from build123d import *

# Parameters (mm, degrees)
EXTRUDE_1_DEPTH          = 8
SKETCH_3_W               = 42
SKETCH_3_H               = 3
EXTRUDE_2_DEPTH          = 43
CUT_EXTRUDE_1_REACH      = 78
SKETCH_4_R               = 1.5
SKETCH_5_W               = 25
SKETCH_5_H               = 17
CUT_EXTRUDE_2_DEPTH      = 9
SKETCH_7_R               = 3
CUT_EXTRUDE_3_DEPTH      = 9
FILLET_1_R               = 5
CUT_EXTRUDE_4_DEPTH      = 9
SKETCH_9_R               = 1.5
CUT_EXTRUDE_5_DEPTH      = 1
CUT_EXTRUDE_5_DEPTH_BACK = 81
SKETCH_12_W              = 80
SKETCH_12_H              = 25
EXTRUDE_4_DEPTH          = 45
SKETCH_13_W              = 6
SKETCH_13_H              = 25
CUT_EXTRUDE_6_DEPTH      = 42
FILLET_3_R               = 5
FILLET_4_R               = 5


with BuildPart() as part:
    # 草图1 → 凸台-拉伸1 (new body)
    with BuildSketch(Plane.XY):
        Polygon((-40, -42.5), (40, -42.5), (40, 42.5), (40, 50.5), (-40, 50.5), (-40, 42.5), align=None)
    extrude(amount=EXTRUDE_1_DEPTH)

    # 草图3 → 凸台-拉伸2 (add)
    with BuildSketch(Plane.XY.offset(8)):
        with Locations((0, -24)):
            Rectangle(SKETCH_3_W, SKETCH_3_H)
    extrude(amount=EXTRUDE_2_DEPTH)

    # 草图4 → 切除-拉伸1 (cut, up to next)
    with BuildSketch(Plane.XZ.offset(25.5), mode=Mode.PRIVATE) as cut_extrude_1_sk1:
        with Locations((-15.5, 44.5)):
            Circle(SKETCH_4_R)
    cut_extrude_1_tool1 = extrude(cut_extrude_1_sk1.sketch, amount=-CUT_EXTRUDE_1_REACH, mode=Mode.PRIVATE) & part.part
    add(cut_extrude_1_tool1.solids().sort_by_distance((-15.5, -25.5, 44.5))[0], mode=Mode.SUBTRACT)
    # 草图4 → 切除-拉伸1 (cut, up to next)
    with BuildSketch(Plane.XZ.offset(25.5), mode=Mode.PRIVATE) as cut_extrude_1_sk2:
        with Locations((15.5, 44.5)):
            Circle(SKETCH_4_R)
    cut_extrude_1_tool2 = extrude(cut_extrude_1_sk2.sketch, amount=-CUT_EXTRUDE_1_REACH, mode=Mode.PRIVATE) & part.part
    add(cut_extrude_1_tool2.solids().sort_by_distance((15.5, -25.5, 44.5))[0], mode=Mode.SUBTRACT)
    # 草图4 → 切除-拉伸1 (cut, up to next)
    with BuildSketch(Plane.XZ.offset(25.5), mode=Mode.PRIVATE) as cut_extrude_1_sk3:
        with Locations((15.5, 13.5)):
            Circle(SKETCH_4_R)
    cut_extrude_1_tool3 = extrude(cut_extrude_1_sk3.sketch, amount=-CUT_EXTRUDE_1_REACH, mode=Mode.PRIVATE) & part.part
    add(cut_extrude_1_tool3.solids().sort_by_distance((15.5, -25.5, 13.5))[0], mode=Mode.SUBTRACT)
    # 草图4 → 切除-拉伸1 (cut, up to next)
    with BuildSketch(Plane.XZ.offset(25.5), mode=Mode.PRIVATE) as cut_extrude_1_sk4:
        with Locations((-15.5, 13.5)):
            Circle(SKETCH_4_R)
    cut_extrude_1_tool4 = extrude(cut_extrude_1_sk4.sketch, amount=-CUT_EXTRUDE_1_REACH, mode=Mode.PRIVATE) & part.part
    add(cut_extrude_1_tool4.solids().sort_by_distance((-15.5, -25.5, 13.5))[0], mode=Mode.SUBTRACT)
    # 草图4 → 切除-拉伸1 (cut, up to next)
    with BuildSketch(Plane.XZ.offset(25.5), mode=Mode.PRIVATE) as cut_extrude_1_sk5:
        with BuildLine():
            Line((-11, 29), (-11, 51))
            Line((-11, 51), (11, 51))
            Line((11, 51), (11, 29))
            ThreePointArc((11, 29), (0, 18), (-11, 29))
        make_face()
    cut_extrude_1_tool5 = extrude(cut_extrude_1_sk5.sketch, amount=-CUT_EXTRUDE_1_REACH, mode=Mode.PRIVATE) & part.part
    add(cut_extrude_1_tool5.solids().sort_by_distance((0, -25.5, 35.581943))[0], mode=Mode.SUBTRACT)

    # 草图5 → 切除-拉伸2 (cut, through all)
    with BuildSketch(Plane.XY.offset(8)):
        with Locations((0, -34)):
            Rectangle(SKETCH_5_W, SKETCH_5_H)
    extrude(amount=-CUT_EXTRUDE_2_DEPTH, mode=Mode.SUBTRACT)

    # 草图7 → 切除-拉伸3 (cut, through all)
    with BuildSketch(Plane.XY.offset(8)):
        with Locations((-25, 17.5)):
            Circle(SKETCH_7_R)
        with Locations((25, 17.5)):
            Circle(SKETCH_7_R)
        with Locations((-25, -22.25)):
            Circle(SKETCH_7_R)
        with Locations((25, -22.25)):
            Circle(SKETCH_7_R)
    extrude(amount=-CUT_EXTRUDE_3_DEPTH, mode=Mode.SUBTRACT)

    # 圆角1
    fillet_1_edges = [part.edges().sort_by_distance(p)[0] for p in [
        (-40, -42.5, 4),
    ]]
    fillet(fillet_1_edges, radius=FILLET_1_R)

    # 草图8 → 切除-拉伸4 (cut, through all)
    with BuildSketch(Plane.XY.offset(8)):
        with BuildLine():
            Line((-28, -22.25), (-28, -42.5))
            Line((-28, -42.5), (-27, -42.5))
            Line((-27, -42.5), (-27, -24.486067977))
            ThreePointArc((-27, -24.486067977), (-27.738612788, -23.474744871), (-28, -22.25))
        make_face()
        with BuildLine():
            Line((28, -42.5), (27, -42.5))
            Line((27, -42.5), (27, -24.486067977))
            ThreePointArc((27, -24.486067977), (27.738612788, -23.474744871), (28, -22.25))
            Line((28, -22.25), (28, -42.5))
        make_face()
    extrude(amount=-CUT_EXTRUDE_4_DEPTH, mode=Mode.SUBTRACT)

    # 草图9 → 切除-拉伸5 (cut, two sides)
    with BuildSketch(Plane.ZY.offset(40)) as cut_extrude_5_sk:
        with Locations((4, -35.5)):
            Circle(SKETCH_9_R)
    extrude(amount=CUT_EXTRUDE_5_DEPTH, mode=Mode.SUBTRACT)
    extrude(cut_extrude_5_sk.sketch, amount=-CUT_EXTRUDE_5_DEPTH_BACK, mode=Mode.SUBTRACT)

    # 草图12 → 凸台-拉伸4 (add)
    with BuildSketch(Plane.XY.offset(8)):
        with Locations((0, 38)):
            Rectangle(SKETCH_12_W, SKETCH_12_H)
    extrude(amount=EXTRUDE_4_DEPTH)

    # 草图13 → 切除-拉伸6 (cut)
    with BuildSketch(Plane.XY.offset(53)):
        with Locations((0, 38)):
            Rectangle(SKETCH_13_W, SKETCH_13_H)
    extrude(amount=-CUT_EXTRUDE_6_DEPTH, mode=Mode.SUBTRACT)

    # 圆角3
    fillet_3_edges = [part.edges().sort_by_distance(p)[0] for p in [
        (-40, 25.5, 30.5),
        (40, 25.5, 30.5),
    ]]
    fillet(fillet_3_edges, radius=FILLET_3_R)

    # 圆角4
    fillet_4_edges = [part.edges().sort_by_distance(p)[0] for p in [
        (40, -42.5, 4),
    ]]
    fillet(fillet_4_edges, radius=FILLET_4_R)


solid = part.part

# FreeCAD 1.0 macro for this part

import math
import FreeCAD as App
import Part
import Sketcher
from FreeCAD import Vector


def edges_at(feature, points):
    """Names of the edges that pass closest to the given points."""
    edges = feature.Shape.Edges
    near = lambda p: min(range(len(edges)), key=lambda i: edges[i].distToShape(Part.Vertex(*p))[0])
    return sorted({f"Edge{near(p) + 1}" for p in points})

doc = App.newDocument("Part")
body = doc.addObject("PartDesign::Body", "Body")

sketch1 = body.newObject("Sketcher::SketchObject", "Sketch")
sketch1.AttachmentSupport = (doc.getObject("XY_Plane"), [""])
sketch1.MapMode = "FlatFace"
sketch1.addGeometry([
    Part.LineSegment(Vector(-40, -42, 0), Vector(40, -42, 0)),
    Part.LineSegment(Vector(40, -42, 0), Vector(40, 50, 0)),
    Part.LineSegment(Vector(40, 50, 0), Vector(-40, 50, 0)),
    Part.LineSegment(Vector(-40, 50, 0), Vector(-40, -42, 0)),
], False)
sketch1.addConstraint([
    Sketcher.Constraint("Coincident", 0, 2, 1, 1),
    Sketcher.Constraint("Coincident", 1, 2, 2, 1),
    Sketcher.Constraint("Coincident", 2, 2, 3, 1),
    Sketcher.Constraint("Coincident", 3, 2, 0, 1),
    Sketcher.Constraint("Horizontal", 0),
    Sketcher.Constraint("Vertical", 1),
    Sketcher.Constraint("Horizontal", 2),
    Sketcher.Constraint("Vertical", 3),
    Sketcher.Constraint("DistanceX", 0, 1, 0, 2, 80.0),
    Sketcher.Constraint("DistanceY", 1, 1, 1, 2, 93.0),
    Sketcher.Constraint("DistanceX", -1, 1, 0, 2, 40.0),
    Sketcher.Constraint("DistanceY", 0, 2, -1, 1, 42.5),
])
pad1 = body.newObject("PartDesign::Pad", "Pad")
pad1.Profile = sketch1
pad1.Length = 8

sketch2 = body.newObject("Sketcher::SketchObject", "Sketch001")
sketch2.AttachmentSupport = (doc.getObject("XY_Plane"), [""])
sketch2.MapMode = "FlatFace"
sketch2.AttachmentOffset = App.Placement(Vector(0, 0, 8), App.Rotation())
sketch2.addGeometry([
    Part.LineSegment(Vector(-21, -22.5, 0), Vector(-21, -25.5, 0)),
    Part.LineSegment(Vector(-21, -25.5, 0), Vector(21, -25.5, 0)),
    Part.LineSegment(Vector(21, -25.5, 0), Vector(21, -22.5, 0)),
    Part.LineSegment(Vector(21, -22.5, 0), Vector(-21, -22.5, 0)),
], False)
sketch2.addConstraint([
    Sketcher.Constraint("Coincident", 0, 2, 1, 1),
    Sketcher.Constraint("Coincident", 1, 2, 2, 1),
    Sketcher.Constraint("Coincident", 2, 2, 3, 1),
    Sketcher.Constraint("Coincident", 3, 2, 0, 1),
    Sketcher.Constraint("Vertical", 0),
    Sketcher.Constraint("Horizontal", 1),
    Sketcher.Constraint("Vertical", 2),
    Sketcher.Constraint("Horizontal", 3),
    Sketcher.Constraint("DistanceX", 1, 1, 1, 2, 42.0),
    Sketcher.Constraint("DistanceY", 0, 2, 0, 1, 3.0),
    Sketcher.Constraint("DistanceX", 0, 2, -1, 1, 21.0),
    Sketcher.Constraint("DistanceY", 0, 2, -1, 1, 25.5),
])
pad2 = body.newObject("PartDesign::Pad", "Pad001")
pad2.Profile = sketch2
pad2.Length = 43

sketch3 = body.newObject("Sketcher::SketchObject", "Sketch002")
sketch3.AttachmentSupport = (doc.getObject("XZ_Plane"), [""])
sketch3.MapMode = "FlatFace"
sketch3.AttachmentOffset = App.Placement(Vector(0, 0, 25.5), App.Rotation())
sketch3.addGeometry(Part.Circle(Vector(-15.5, 44.5, 0), Vector(0, 0, 1), 1.5), False)
sketch3.addConstraint([
    Sketcher.Constraint("Diameter", 0, 3.0),
    Sketcher.Constraint("DistanceX", 0, 3, -1, 1, 15.5),
    Sketcher.Constraint("DistanceY", -1, 1, 0, 3, 44.5),
])
pocket1 = body.newObject("PartDesign::Pocket", "Pocket")
pocket1.Profile = sketch3
pocket1.Type = "UpToFirst"

sketch4 = body.newObject("Sketcher::SketchObject", "Sketch003")
sketch4.AttachmentSupport = (doc.getObject("XZ_Plane"), [""])
sketch4.MapMode = "FlatFace"
sketch4.AttachmentOffset = App.Placement(Vector(0, 0, 25.5), App.Rotation())
sketch4.addGeometry(Part.Circle(Vector(15.5, 44.5, 0), Vector(0, 0, 1), 1.5), False)
sketch4.addConstraint([
    Sketcher.Constraint("Diameter", 0, 3.0),
    Sketcher.Constraint("DistanceX", -1, 1, 0, 3, 15.5),
    Sketcher.Constraint("DistanceY", -1, 1, 0, 3, 44.5),
])
pocket2 = body.newObject("PartDesign::Pocket", "Pocket001")
pocket2.Profile = sketch4
pocket2.Type = "UpToFirst"

sketch5 = body.newObject("Sketcher::SketchObject", "Sketch004")
sketch5.AttachmentSupport = (doc.getObject("XZ_Plane"), [""])
sketch5.MapMode = "FlatFace"
sketch5.AttachmentOffset = App.Placement(Vector(0, 0, 25.5), App.Rotation())
sketch5.addGeometry(Part.Circle(Vector(15.5, 13.5, 0), Vector(0, 0, 1), 1.5), False)
sketch5.addConstraint([
    Sketcher.Constraint("Diameter", 0, 3.0),
    Sketcher.Constraint("DistanceX", -1, 1, 0, 3, 15.5),
    Sketcher.Constraint("DistanceY", -1, 1, 0, 3, 13.5),
])
pocket3 = body.newObject("PartDesign::Pocket", "Pocket002")
pocket3.Profile = sketch5
pocket3.Type = "UpToFirst"

sketch6 = body.newObject("Sketcher::SketchObject", "Sketch005")
sketch6.AttachmentSupport = (doc.getObject("XZ_Plane"), [""])
sketch6.MapMode = "FlatFace"
sketch6.AttachmentOffset = App.Placement(Vector(0, 0, 25.5), App.Rotation())
sketch6.addGeometry(Part.Circle(Vector(-15.5, 13.5, 0), Vector(0, 0, 1), 1.5), False)
sketch6.addConstraint([
    Sketcher.Constraint("Diameter", 0, 3.0),
    Sketcher.Constraint("DistanceX", 0, 3, -1, 1, 15.5),
    Sketcher.Constraint("DistanceY", -1, 1, 0, 3, 13.5),
])
pocket4 = body.newObject("PartDesign::Pocket", "Pocket003")
pocket4.Profile = sketch6
pocket4.Type = "UpToFirst"

sketch7 = body.newObject("Sketcher::SketchObject", "Sketch006")
sketch7.AttachmentSupport = (doc.getObject("XZ_Plane"), [""])
sketch7.MapMode = "FlatFace"
sketch7.AttachmentOffset = App.Placement(Vector(0, 0, 25.5), App.Rotation())
sketch7.addGeometry([
    Part.LineSegment(Vector(-11, 51, 0), Vector(-11, 29, 0)),
    Part.ArcOfCircle(Part.Circle(Vector(0, 29, 0), Vector(0, 0, 1), 11), math.radians(180), math.radians(360)),
    Part.LineSegment(Vector(11, 29, 0), Vector(11, 51, 0)),
    Part.LineSegment(Vector(11, 51, 0), Vector(-11, 51, 0)),
], False)
sketch7.addConstraint([
    Sketcher.Constraint("Tangent", 0, 2, 1, 1),
    Sketcher.Constraint("Tangent", 1, 2, 2, 1),
    Sketcher.Constraint("Coincident", 2, 2, 3, 1),
    Sketcher.Constraint("Coincident", 3, 2, 0, 1),
    Sketcher.Constraint("Vertical", 0),
    Sketcher.Constraint("Vertical", 2),
    Sketcher.Constraint("Horizontal", 3),
    Sketcher.Constraint("PointOnObject", 1, 3, -2),
    Sketcher.Constraint("Equal", 3, 0),
    Sketcher.Constraint("Radius", 1, 11.0),
    Sketcher.Constraint("DistanceY", -1, 1, 1, 3, 29.0),
])
pocket5 = body.newObject("PartDesign::Pocket", "Pocket004")
pocket5.Profile = sketch7
pocket5.Type = "UpToFirst"

sketch8 = body.newObject("Sketcher::SketchObject", "Sketch007")
sketch8.AttachmentSupport = (doc.getObject("XY_Plane"), [""])
sketch8.MapMode = "FlatFace"
sketch8.AttachmentOffset = App.Placement(Vector(0, 0, 8), App.Rotation())
sketch8.addGeometry([
    Part.LineSegment(Vector(-12, -26, 0), Vector(-12, -42, 0)),
    Part.LineSegment(Vector(-12, -42, 0), Vector(12, -42, 0)),
    Part.LineSegment(Vector(12, -42, 0), Vector(12, -26, 0)),
    Part.LineSegment(Vector(12, -26, 0), Vector(-12, -26, 0)),
], False)
sketch8.addConstraint([
    Sketcher.Constraint("Coincident", 0, 2, 1, 1),
    Sketcher.Constraint("Coincident", 1, 2, 2, 1),
    Sketcher.Constraint("Coincident", 2, 2, 3, 1),
    Sketcher.Constraint("Coincident", 3, 2, 0, 1),
    Sketcher.Constraint("Vertical", 0),
    Sketcher.Constraint("Horizontal", 1),
    Sketcher.Constraint("Vertical", 2),
    Sketcher.Constraint("Horizontal", 3),
    Sketcher.Constraint("DistanceX", 1, 1, 1, 2, 25.0),
    Sketcher.Constraint("DistanceY", 0, 2, 0, 1, 17.0),
    Sketcher.Constraint("DistanceX", 0, 2, -1, 1, 12.5),
    Sketcher.Constraint("DistanceY", 0, 2, -1, 1, 42.5),
])
pocket6 = body.newObject("PartDesign::Pocket", "Pocket005")
pocket6.Profile = sketch8
pocket6.Type = "ThroughAll"

sketch9 = body.newObject("Sketcher::SketchObject", "Sketch008")
sketch9.AttachmentSupport = (doc.getObject("XY_Plane"), [""])
sketch9.MapMode = "FlatFace"
sketch9.AttachmentOffset = App.Placement(Vector(0, 0, 8), App.Rotation())
sketch9.addGeometry([
    Part.Circle(Vector(-25, 17.5, 0), Vector(0, 0, 1), 3),
    Part.Circle(Vector(25, 17.5, 0), Vector(0, 0, 1), 3),
    Part.Circle(Vector(-25, -22.2, 0), Vector(0, 0, 1), 3),
    Part.Circle(Vector(25, -22.2, 0), Vector(0, 0, 1), 3),
], False)
sketch9.addConstraint([
    Sketcher.Constraint("Equal", 0, 1),
    Sketcher.Constraint("Equal", 1, 2),
    Sketcher.Constraint("Equal", 2, 3),
    Sketcher.Constraint("Symmetric", 0, 3, 1, 3, -2),
    Sketcher.Constraint("Symmetric", 2, 3, 3, 3, -2),
    Sketcher.Constraint("Vertical", 0, 3, 2, 3),
    Sketcher.Constraint("Diameter", 0, 6.0),
    Sketcher.Constraint("DistanceX", 0, 3, -1, 1, 25.0),
    Sketcher.Constraint("DistanceY", -1, 1, 0, 3, 17.5),
    Sketcher.Constraint("DistanceY", 2, 3, -1, 1, 22.25),
])
pocket7 = body.newObject("PartDesign::Pocket", "Pocket006")
pocket7.Profile = sketch9
pocket7.Type = "ThroughAll"
doc.recompute()

fillet = body.newObject("PartDesign::Fillet", "Fillet")
fillet.Base = (pocket7, edges_at(pocket7, [(-40, -42.5, 4)]))
fillet.Radius = 5

sketch10 = body.newObject("Sketcher::SketchObject", "Sketch009")
sketch10.AttachmentSupport = (doc.getObject("XY_Plane"), [""])
sketch10.MapMode = "FlatFace"
sketch10.AttachmentOffset = App.Placement(Vector(0, 0, 8), App.Rotation())
sketch10.addGeometry([
    Part.LineSegment(Vector(-28, -22.2, 0), Vector(-28, -42.5, 0)),
    Part.LineSegment(Vector(-28, -42.5, 0), Vector(-27, -42.5, 0)),
    Part.LineSegment(Vector(-27, -42.5, 0), Vector(-27, -24.5, 0)),
    Part.ArcOfCircle(Part.Circle(Vector(-25, -22.3, 0), Vector(0, 0, 1), 3), math.radians(180), math.radians(228)),
    Part.LineSegment(Vector(27, -42.5, 0), Vector(28, -42.5, 0)),
    Part.LineSegment(Vector(28, -42.5, 0), Vector(28, -22.2, 0)),
    Part.ArcOfCircle(Part.Circle(Vector(25, -22.3, 0), Vector(0, 0, 1), 3), math.radians(-48), math.radians(0)),
    Part.LineSegment(Vector(27, -24.5, 0), Vector(27, -42.5, 0)),
], False)
sketch10.addConstraint([
    Sketcher.Constraint("Coincident", 0, 2, 1, 1),
    Sketcher.Constraint("Coincident", 1, 2, 2, 1),
    Sketcher.Constraint("Coincident", 2, 2, 3, 2),
    Sketcher.Constraint("Tangent", 3, 1, 0, 1),
    Sketcher.Constraint("Coincident", 4, 2, 5, 1),
    Sketcher.Constraint("Tangent", 5, 2, 6, 2),
    Sketcher.Constraint("Coincident", 6, 1, 7, 1),
    Sketcher.Constraint("Coincident", 7, 2, 4, 1),
    Sketcher.Constraint("Vertical", 0),
    Sketcher.Constraint("Horizontal", 1),
    Sketcher.Constraint("Vertical", 2),
    Sketcher.Constraint("Horizontal", 4),
    Sketcher.Constraint("Vertical", 5),
    Sketcher.Constraint("Vertical", 7),
    Sketcher.Constraint("Equal", 3, 6),
    Sketcher.Constraint("Symmetric", 3, 3, 6, 3, -2),
    Sketcher.Constraint("Symmetric", 1, 2, 7, 2, -2),
    Sketcher.Constraint("Radius", 3, 3.0),
    Sketcher.Constraint("DistanceX", 1, 1, 1, 2, 1.0),
    Sketcher.Constraint("DistanceX", 3, 3, -1, 1, 25.0),
    Sketcher.Constraint("DistanceY", 0, 2, 0, 1, 20.25),
    Sketcher.Constraint("DistanceY", 0, 2, -1, 1, 42.5),
])
pocket8 = body.newObject("PartDesign::Pocket", "Pocket007")
pocket8.Profile = sketch10
pocket8.Type = "ThroughAll"

sketch11 = body.newObject("Sketcher::SketchObject", "Sketch010")
sketch11.AttachmentSupport = (doc.getObject("YZ_Plane"), [""])
sketch11.MapMode = "FlatFace"
sketch11.AttachmentOffset = App.Placement(Vector(0, 0, -40), App.Rotation())
sketch11.addGeometry(Part.Circle(Vector(-35.5, 4, 0), Vector(0, 0, 1), 1.5), False)
sketch11.addConstraint([
    Sketcher.Constraint("Diameter", 0, 3.0),
    Sketcher.Constraint("DistanceY", -1, 1, 0, 3, 4.0),
    Sketcher.Constraint("DistanceX", 0, 3, -1, 1, 35.5),
])
pocket9 = body.newObject("PartDesign::Pocket", "Pocket008")
pocket9.Profile = sketch11
pocket9.Type = "ThroughAll"
pocket9.Midplane = True

sketch12 = body.newObject("Sketcher::SketchObject", "Sketch011")
sketch12.AttachmentSupport = (doc.getObject("XY_Plane"), [""])
sketch12.MapMode = "FlatFace"
sketch12.AttachmentOffset = App.Placement(Vector(0, 0, 8), App.Rotation())
sketch12.addGeometry([
    Part.LineSegment(Vector(-40, 50, 0), Vector(-40, 26, 0)),
    Part.LineSegment(Vector(-40, 26, 0), Vector(40, 26, 0)),
    Part.LineSegment(Vector(40, 26, 0), Vector(40, 50, 0)),
    Part.LineSegment(Vector(40, 50, 0), Vector(-40, 50, 0)),
], False)
sketch12.addConstraint([
    Sketcher.Constraint("Coincident", 0, 2, 1, 1),
    Sketcher.Constraint("Coincident", 1, 2, 2, 1),
    Sketcher.Constraint("Coincident", 2, 2, 3, 1),
    Sketcher.Constraint("Coincident", 3, 2, 0, 1),
    Sketcher.Constraint("Vertical", 0),
    Sketcher.Constraint("Horizontal", 1),
    Sketcher.Constraint("Vertical", 2),
    Sketcher.Constraint("Horizontal", 3),
    Sketcher.Constraint("DistanceX", 1, 1, 1, 2, 80.0),
    Sketcher.Constraint("DistanceY", 0, 2, 0, 1, 25.0),
    Sketcher.Constraint("DistanceX", 0, 2, -1, 1, 40.0),
    Sketcher.Constraint("DistanceY", -1, 1, 0, 2, 25.5),
])
pad3 = body.newObject("PartDesign::Pad", "Pad002")
pad3.Profile = sketch12
pad3.Length = 45

sketch13 = body.newObject("Sketcher::SketchObject", "Sketch012")
sketch13.AttachmentSupport = (doc.getObject("XY_Plane"), [""])
sketch13.MapMode = "FlatFace"
sketch13.AttachmentOffset = App.Placement(Vector(0, 0, 53), App.Rotation())
sketch13.addGeometry([
    Part.LineSegment(Vector(-3, 50, 0), Vector(-3, 26, 0)),
    Part.LineSegment(Vector(-3, 26, 0), Vector(3, 26, 0)),
    Part.LineSegment(Vector(3, 26, 0), Vector(3, 50, 0)),
    Part.LineSegment(Vector(3, 50, 0), Vector(-3, 50, 0)),
], False)
sketch13.addConstraint([
    Sketcher.Constraint("Coincident", 0, 2, 1, 1),
    Sketcher.Constraint("Coincident", 1, 2, 2, 1),
    Sketcher.Constraint("Coincident", 2, 2, 3, 1),
    Sketcher.Constraint("Coincident", 3, 2, 0, 1),
    Sketcher.Constraint("Vertical", 0),
    Sketcher.Constraint("Horizontal", 1),
    Sketcher.Constraint("Vertical", 2),
    Sketcher.Constraint("Horizontal", 3),
    Sketcher.Constraint("DistanceX", 1, 1, 1, 2, 6.0),
    Sketcher.Constraint("DistanceY", 0, 2, 0, 1, 25.0),
    Sketcher.Constraint("DistanceX", 0, 2, -1, 1, 3.0),
    Sketcher.Constraint("DistanceY", -1, 1, 0, 2, 25.5),
])
pocket10 = body.newObject("PartDesign::Pocket", "Pocket009")
pocket10.Profile = sketch13
pocket10.Length = 42
doc.recompute()

fillet2 = body.newObject("PartDesign::Fillet", "Fillet001")
fillet2.Base = (pocket10, edges_at(pocket10, [(-40, 25.5, 30.5), (40, 25.5, 30.5)]))
fillet2.Radius = 5
doc.recompute()

fillet3 = body.newObject("PartDesign::Fillet", "Fillet002")
fillet3.Base = (fillet2, edges_at(fillet2, [(40, -42.5, 4)]))
fillet3.Radius = 5

doc.recompute()
